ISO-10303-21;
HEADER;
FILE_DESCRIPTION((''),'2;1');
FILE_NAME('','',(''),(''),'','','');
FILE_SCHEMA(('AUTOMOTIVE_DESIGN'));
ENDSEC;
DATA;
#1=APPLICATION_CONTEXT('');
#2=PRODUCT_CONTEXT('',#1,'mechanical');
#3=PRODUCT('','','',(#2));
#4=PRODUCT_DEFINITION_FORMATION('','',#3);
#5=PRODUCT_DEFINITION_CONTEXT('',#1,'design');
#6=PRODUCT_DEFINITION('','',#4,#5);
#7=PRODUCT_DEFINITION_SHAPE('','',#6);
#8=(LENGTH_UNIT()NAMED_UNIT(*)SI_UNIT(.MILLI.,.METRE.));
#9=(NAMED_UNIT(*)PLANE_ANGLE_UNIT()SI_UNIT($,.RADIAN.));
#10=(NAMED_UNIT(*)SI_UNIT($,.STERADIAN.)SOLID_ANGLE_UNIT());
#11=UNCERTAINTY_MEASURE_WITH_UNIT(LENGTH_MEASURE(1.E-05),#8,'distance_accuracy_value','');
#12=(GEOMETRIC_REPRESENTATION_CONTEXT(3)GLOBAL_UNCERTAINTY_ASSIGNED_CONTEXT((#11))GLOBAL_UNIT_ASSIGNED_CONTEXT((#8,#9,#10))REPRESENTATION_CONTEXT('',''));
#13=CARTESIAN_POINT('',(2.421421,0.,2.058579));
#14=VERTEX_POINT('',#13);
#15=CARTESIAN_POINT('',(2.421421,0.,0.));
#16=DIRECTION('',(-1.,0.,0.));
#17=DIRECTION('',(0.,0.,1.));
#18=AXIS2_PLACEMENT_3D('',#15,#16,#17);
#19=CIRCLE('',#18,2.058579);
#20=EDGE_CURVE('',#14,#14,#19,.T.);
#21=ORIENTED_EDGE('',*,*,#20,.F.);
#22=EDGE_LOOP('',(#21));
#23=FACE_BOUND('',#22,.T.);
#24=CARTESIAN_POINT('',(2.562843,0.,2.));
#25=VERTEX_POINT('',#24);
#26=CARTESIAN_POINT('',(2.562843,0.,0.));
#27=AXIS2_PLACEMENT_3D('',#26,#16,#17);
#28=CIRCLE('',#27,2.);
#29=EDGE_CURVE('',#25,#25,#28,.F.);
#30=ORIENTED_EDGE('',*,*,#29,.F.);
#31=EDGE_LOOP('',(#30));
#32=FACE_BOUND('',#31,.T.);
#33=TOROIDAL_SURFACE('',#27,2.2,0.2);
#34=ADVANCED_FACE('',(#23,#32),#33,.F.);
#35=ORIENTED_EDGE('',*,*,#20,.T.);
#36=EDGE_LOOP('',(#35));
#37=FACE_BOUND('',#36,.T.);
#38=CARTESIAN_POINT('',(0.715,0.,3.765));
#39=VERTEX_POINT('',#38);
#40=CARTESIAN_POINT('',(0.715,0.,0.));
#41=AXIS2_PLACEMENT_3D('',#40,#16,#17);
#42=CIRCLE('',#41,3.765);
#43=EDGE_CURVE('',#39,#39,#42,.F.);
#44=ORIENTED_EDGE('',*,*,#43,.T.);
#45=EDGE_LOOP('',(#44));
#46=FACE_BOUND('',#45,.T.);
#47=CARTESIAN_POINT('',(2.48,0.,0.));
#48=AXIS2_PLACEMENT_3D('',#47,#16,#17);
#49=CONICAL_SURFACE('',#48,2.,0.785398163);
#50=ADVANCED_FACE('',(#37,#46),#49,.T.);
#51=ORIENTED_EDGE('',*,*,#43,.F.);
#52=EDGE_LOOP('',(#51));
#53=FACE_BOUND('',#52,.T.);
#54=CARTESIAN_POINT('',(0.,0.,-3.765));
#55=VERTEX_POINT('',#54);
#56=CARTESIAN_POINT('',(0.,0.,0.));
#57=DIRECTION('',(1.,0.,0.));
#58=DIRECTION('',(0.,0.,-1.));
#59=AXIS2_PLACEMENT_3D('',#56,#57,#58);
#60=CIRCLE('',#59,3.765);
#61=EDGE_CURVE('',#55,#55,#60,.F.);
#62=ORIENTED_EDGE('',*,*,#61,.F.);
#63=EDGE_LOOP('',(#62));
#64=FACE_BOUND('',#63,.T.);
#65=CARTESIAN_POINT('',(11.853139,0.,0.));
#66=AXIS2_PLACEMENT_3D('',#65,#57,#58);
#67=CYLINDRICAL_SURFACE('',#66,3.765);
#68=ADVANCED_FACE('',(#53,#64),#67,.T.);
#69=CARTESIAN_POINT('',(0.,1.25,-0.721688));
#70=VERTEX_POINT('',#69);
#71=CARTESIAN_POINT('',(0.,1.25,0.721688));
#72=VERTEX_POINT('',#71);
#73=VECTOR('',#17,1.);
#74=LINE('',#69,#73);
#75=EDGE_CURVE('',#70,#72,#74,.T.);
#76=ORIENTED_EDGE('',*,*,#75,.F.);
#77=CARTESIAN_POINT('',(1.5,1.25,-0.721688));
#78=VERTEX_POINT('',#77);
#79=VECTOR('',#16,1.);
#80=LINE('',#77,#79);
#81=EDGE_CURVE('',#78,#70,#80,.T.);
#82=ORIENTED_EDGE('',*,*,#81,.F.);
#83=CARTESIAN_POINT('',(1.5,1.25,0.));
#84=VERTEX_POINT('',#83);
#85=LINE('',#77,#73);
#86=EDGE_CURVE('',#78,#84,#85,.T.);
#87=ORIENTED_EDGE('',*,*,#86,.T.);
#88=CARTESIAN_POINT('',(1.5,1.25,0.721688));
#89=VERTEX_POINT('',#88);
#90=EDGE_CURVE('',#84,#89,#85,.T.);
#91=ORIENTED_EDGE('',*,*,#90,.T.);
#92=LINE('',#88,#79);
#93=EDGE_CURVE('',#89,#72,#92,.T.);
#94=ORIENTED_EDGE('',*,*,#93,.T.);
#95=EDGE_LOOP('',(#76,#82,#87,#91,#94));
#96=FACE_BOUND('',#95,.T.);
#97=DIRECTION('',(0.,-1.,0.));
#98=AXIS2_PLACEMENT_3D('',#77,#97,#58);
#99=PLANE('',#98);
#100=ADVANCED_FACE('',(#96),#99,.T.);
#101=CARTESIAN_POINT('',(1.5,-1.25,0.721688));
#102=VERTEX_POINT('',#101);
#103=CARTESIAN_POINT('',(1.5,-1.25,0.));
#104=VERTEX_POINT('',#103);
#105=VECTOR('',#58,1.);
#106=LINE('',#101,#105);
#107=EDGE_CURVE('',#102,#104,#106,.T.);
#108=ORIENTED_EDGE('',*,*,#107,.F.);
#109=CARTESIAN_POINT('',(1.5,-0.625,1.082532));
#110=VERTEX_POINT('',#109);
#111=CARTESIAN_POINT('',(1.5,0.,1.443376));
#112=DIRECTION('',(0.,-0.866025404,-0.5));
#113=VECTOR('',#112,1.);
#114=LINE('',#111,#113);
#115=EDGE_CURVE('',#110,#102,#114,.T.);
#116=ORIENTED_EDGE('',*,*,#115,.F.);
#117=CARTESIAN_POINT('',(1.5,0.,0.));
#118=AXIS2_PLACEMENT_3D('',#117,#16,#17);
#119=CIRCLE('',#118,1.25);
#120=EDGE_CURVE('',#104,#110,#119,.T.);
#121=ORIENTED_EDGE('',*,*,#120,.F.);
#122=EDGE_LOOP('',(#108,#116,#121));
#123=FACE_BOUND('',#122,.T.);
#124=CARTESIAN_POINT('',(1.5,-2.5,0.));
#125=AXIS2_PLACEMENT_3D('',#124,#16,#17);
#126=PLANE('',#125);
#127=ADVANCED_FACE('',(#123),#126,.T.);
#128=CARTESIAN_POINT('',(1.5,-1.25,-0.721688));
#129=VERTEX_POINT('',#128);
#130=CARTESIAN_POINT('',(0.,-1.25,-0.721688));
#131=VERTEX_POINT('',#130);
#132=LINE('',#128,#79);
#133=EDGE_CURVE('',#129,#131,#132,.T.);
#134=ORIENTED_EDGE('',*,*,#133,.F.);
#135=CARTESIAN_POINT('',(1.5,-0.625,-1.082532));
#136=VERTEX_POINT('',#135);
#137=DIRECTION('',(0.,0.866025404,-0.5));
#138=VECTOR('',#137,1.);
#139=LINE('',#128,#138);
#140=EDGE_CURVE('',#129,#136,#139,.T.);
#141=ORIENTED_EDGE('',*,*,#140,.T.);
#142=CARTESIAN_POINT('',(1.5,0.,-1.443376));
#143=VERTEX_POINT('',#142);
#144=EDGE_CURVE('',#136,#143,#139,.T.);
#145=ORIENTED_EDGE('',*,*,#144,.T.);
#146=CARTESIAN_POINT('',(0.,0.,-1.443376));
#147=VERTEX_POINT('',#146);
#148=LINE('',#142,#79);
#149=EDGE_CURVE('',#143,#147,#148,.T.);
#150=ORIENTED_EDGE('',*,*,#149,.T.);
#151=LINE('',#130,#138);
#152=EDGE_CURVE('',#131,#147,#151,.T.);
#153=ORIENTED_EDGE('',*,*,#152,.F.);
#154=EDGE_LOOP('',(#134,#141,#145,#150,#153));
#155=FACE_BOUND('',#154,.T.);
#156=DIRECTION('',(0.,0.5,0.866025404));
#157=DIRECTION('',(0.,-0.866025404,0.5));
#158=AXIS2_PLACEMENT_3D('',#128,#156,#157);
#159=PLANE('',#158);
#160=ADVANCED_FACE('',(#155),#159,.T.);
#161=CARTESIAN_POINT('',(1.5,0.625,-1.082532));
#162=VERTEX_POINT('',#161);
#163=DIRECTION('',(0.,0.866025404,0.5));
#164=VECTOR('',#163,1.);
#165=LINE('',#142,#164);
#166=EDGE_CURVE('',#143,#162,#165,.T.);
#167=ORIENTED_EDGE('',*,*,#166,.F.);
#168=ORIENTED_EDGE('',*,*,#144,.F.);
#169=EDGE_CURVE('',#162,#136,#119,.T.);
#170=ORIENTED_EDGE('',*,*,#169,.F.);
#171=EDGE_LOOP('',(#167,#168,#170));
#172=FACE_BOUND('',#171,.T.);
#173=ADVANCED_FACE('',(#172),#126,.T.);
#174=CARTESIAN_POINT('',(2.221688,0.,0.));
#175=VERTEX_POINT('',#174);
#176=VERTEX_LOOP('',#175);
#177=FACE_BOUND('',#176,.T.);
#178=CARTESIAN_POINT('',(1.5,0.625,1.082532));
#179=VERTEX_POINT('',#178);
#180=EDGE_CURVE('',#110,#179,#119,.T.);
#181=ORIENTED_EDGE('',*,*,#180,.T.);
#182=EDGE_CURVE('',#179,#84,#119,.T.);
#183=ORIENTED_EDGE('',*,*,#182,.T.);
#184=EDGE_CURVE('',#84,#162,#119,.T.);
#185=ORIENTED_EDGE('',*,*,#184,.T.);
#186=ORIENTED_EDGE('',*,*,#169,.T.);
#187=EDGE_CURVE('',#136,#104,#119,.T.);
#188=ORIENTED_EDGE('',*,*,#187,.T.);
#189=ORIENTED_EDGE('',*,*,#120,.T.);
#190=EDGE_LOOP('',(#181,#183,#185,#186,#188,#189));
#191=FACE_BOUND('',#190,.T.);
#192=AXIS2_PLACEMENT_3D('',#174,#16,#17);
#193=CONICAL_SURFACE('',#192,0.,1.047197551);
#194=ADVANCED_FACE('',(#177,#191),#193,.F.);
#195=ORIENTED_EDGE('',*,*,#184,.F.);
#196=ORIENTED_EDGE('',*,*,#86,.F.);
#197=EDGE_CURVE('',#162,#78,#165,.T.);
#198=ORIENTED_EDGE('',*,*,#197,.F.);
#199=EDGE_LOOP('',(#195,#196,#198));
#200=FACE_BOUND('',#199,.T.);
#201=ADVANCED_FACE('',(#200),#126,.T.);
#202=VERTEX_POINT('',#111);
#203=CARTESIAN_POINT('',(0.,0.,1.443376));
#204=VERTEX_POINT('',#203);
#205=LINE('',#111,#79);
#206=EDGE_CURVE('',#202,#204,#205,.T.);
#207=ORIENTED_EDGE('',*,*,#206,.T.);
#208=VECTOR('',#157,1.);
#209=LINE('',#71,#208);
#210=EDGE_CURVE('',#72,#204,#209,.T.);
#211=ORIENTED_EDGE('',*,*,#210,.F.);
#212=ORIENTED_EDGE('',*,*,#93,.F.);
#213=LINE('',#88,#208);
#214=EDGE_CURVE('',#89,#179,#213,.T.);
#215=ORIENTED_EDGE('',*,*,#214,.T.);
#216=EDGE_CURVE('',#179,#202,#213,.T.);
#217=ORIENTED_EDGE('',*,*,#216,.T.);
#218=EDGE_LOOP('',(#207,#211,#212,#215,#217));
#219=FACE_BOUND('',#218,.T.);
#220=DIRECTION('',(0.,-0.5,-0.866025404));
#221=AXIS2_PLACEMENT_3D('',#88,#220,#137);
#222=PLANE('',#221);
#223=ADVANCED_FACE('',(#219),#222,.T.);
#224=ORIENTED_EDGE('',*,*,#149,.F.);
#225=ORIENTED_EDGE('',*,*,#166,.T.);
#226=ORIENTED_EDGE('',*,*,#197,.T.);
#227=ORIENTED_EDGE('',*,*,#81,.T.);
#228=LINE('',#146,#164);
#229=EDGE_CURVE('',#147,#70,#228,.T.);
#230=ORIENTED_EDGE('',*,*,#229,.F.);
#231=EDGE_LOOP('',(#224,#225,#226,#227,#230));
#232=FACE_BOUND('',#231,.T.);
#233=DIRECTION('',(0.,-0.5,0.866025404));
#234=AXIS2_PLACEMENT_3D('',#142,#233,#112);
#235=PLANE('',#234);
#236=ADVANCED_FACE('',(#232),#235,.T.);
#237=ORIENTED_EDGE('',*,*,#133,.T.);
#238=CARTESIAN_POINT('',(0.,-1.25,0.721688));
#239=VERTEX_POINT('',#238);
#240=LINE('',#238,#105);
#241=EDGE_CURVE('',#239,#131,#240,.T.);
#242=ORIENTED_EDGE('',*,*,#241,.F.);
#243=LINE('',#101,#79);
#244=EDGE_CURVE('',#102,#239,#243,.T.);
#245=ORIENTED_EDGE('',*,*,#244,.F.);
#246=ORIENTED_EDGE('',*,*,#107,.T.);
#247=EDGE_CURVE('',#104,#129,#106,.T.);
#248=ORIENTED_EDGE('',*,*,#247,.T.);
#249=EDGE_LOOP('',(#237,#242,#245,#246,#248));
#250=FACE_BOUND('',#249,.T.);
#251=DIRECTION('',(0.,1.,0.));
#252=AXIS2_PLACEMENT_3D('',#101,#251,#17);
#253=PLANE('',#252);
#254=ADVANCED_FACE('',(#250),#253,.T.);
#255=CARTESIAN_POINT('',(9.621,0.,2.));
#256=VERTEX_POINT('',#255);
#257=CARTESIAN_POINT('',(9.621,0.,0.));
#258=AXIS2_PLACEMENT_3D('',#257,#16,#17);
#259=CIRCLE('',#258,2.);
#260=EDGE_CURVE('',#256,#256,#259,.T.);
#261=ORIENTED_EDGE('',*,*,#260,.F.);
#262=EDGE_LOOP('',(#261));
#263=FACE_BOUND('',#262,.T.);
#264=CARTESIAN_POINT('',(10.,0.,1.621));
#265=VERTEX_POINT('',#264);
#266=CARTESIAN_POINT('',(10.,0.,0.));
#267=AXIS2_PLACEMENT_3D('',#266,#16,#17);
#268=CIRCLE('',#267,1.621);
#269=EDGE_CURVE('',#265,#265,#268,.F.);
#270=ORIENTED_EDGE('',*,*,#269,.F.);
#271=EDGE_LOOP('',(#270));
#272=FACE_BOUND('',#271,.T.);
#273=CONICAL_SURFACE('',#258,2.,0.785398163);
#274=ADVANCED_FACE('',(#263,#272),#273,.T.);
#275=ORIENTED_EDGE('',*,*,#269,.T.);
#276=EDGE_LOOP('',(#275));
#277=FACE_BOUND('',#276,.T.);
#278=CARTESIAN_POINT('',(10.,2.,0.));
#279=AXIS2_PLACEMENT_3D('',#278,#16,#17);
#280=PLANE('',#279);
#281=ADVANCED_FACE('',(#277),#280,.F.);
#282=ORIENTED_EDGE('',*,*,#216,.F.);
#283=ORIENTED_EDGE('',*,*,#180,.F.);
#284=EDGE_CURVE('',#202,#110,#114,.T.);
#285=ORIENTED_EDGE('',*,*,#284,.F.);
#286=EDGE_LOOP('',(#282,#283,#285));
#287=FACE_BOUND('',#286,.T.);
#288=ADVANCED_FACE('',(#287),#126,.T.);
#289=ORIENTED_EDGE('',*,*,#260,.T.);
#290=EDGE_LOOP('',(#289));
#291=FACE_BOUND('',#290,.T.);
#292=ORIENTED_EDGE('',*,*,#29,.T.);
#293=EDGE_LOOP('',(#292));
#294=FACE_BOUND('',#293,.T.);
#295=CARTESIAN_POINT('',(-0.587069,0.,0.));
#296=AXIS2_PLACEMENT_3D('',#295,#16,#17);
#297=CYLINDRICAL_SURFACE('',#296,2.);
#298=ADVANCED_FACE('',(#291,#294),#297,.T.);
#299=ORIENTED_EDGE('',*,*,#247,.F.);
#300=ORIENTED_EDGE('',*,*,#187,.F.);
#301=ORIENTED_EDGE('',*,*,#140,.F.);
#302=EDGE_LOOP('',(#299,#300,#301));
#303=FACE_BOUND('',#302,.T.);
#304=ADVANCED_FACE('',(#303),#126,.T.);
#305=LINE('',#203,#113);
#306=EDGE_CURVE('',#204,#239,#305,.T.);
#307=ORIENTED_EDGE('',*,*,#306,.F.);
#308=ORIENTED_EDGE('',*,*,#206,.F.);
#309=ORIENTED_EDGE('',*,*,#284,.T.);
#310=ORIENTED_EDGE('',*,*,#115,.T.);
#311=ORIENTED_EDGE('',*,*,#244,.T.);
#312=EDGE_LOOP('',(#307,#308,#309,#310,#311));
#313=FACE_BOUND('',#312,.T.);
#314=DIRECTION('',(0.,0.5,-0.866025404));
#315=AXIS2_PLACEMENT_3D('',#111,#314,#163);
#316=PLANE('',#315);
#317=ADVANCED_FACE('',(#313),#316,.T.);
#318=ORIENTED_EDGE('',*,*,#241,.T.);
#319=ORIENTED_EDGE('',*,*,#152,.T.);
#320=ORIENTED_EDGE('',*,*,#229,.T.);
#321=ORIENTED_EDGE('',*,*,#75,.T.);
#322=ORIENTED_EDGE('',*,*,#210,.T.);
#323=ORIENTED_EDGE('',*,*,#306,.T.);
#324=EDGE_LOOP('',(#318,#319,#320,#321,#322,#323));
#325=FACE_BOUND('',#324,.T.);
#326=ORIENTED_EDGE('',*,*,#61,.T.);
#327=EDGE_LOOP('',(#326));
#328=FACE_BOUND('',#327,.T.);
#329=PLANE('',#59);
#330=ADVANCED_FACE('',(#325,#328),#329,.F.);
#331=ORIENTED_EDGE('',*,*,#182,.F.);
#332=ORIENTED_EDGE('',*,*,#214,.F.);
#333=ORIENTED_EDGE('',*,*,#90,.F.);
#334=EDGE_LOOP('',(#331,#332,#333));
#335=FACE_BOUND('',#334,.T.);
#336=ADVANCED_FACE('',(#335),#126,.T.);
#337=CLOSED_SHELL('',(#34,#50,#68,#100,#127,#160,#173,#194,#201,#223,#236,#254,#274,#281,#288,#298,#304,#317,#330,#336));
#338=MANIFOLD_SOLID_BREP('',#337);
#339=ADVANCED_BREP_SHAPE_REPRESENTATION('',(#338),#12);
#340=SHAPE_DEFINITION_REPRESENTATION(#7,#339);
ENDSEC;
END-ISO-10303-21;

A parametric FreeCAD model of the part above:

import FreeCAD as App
import Part
import Sketcher
from FreeCAD import Vector
Q = App.Units.Quantity


def edges_at(feature, points):
    """Names of the edges that pass closest to the given points."""
    edges = feature.Shape.Edges
    near = lambda p: min(range(len(edges)), key=lambda i: edges[i].distToShape(Part.Vertex(*p))[0])
    return sorted({f"Edge{near(p) + 1}" for p in points})

doc = App.newDocument("Part")
body = doc.addObject("PartDesign::Body", "Body")

# Sketch on XY plane
sketch1 = body.newObject("Sketcher::SketchObject", "Sketch")
sketch1.AttachmentSupport = (doc.getObject("XY_Plane"), [""])
sketch1.MapMode = "FlatFace"
sketch1.addGeometry(Part.LineSegment(Vector(0, 4.5, 0), Vector(0, 0, 0)), False)
sketch1.addGeometry(Part.LineSegment(Vector(0, 0, 0), Vector(10, 0, 0)), False)
sketch1.addGeometry(Part.LineSegment(Vector(10, 0, 0), Vector(10, 2, 0)), False)
sketch1.addGeometry(Part.LineSegment(Vector(10, 2, 0), Vector(2.5, 2, 0)), False)
sketch1.addGeometry(Part.LineSegment(Vector(2.5, 2, 0), Vector(0, 4.5, 0)), False)
sketch1.addConstraint(Sketcher.Constraint("Coincident", 0, 2, 1, 1))
sketch1.addConstraint(Sketcher.Constraint("Coincident", 1, 2, 2, 1))
sketch1.addConstraint(Sketcher.Constraint("Coincident", 2, 2, 3, 1))
sketch1.addConstraint(Sketcher.Constraint("Coincident", 3, 2, 4, 1))
sketch1.addConstraint(Sketcher.Constraint("Coincident", 4, 2, 0, 1))
sketch1.addConstraint(Sketcher.Constraint("Vertical", 0))
sketch1.addConstraint(Sketcher.Constraint("Horizontal", 1))
sketch1.addConstraint(Sketcher.Constraint("Vertical", 2))
sketch1.addConstraint(Sketcher.Constraint("Horizontal", 3))
sketch1.addConstraint(Sketcher.Constraint("Coincident", 0, 2, -1, 1))
sketch1.addConstraint(Sketcher.Constraint("DistanceX", 1, 1, 1, 2, 10.0))
sketch1.addConstraint(Sketcher.Constraint("DistanceY", 2, 1, 2, 2, 2.0))
sketch1.addConstraint(Sketcher.Constraint("Angle", 4, Q("135 deg")))
sketch1.addConstraint(Sketcher.Constraint("DistanceX", 3, 2, 3, 1, 7.52))
revolution = body.newObject("PartDesign::Revolution", "Revolution")
revolution.Profile = sketch1
revolution.ReferenceAxis = (sketch1, ["H_Axis"])
revolution.Angle = 360

# Sketch on YZ plane
sketch2 = body.newObject("Sketcher::SketchObject", "Sketch001")
sketch2.AttachmentSupport = (doc.getObject("YZ_Plane"), [""])
sketch2.MapMode = "FlatFace"
sketch2.addGeometry(Part.LineSegment(Vector(0, -1.4, 0), Vector(1.2, -0.7, 0)), False)
sketch2.addGeometry(Part.LineSegment(Vector(1.2, -0.7, 0), Vector(1.2, 0.7, 0)), False)
sketch2.addGeometry(Part.LineSegment(Vector(1.2, 0.7, 0), Vector(0, 1.4, 0)), False)
sketch2.addGeometry(Part.LineSegment(Vector(0, 1.4, 0), Vector(-1.2, 0.7, 0)), False)
sketch2.addGeometry(Part.LineSegment(Vector(-1.2, 0.7, 0), Vector(-1.2, -0.7, 0)), False)
sketch2.addGeometry(Part.LineSegment(Vector(-1.2, -0.7, 0), Vector(0, -1.4, 0)), False)
sketch2.addConstraint(Sketcher.Constraint("Coincident", 0, 2, 1, 1))
sketch2.addConstraint(Sketcher.Constraint("Coincident", 1, 2, 2, 1))
sketch2.addConstraint(Sketcher.Constraint("Coincident", 2, 2, 3, 1))
sketch2.addConstraint(Sketcher.Constraint("Coincident", 3, 2, 4, 1))
sketch2.addConstraint(Sketcher.Constraint("Coincident", 4, 2, 5, 1))
sketch2.addConstraint(Sketcher.Constraint("Coincident", 5, 2, 0, 1))
sketch2.addConstraint(Sketcher.Constraint("Vertical", 1))
sketch2.addConstraint(Sketcher.Constraint("Vertical", 4))
sketch2.addConstraint(Sketcher.Constraint("Symmetric", 0, 2, 3, 2, -1, 1))
sketch2.addConstraint(Sketcher.Constraint("Symmetric", 2, 2, 5, 2, -1, 1))
sketch2.addConstraint(Sketcher.Constraint("PointOnObject", 2, 2, -2))
sketch2.addConstraint(Sketcher.Constraint("Parallel", 2, 5))
sketch2.addConstraint(Sketcher.Constraint("Horizontal", 1, 2, 3, 2))
sketch2.addConstraint(Sketcher.Constraint("Angle", 0, Q("30 deg")))
sketch2.addConstraint(Sketcher.Constraint("DistanceX", 3, 2, 1, 2, 2.5))
sketch2.addConstraint(Sketcher.Constraint("DistanceY", 1, 1, 1, 2, 1.443376))
pocket1 = body.newObject("PartDesign::Pocket", "Pocket")
pocket1.Profile = sketch2
pocket1.Length = 1.5
pocket1.Reversed = True

# Sketch on XY plane
sketch3 = body.newObject("Sketcher::SketchObject", "Sketch002")
sketch3.AttachmentSupport = (doc.getObject("XY_Plane"), [""])
sketch3.MapMode = "FlatFace"
sketch3.addGeometry(Part.LineSegment(Vector(2.2, 0, 0), Vector(1.5, 1.2, 0)), False)
sketch3.addGeometry(Part.LineSegment(Vector(1.5, 1.2, 0), Vector(1.5, 0, 0)), False)
sketch3.addGeometry(Part.LineSegment(Vector(1.5, 0, 0), Vector(2.2, 0, 0)), False)
sketch3.addConstraint(Sketcher.Constraint("Coincident", 0, 2, 1, 1))
sketch3.addConstraint(Sketcher.Constraint("Coincident", 1, 2, 2, 1))
sketch3.addConstraint(Sketcher.Constraint("Coincident", 2, 2, 0, 1))
sketch3.addConstraint(Sketcher.Constraint("Vertical", 1))
sketch3.addConstraint(Sketcher.Constraint("Horizontal", 2))
sketch3.addConstraint(Sketcher.Constraint("PointOnObject", 1, 2, -1))
sketch3.addConstraint(Sketcher.Constraint("Angle", 0, Q("120 deg")))
sketch3.addConstraint(Sketcher.Constraint("DistanceY", 1, 2, 1, 1, 1.25))
sketch3.addConstraint(Sketcher.Constraint("DistanceX", -1, 1, 0, 2, 1.5))
groove = body.newObject("PartDesign::Groove", "Groove")
groove.Profile = sketch3
groove.ReferenceAxis = (sketch3, ["H_Axis"])
groove.Angle = 360
doc.recompute()

fillet = body.newObject("PartDesign::Fillet", "Fillet")
fillet.Base = (groove, edges_at(groove, [(2.48, 0, -2)]))
fillet.Radius = 0.2
doc.recompute()

chamfer = body.newObject("PartDesign::Chamfer", "Chamfer")
chamfer.Base = (fillet, edges_at(fillet, [(10, 0, -2)]))
chamfer.Size = 0.379

# Sketch on XZ plane
sketch4 = body.newObject("Sketcher::SketchObject", "Sketch003")
sketch4.AttachmentSupport = (doc.getObject("XZ_Plane"), [""])
sketch4.MapMode = "FlatFace"
sketch4.addGeometry(Part.LineSegment(Vector(-2, -9, 0), Vector(-2, -4, 0)), False)
sketch4.addGeometry(Part.LineSegment(Vector(-2, -4, 0), Vector(3, -4, 0)), False)
sketch4.addGeometry(Part.LineSegment(Vector(3, -4, 0), Vector(3, -9, 0)), False)
sketch4.addGeometry(Part.LineSegment(Vector(3, -9, 0), Vector(-2, -9, 0)), False)
sketch4.addConstraint(Sketcher.Constraint("Coincident", 0, 2, 1, 1))
sketch4.addConstraint(Sketcher.Constraint("Coincident", 1, 2, 2, 1))
sketch4.addConstraint(Sketcher.Constraint("Coincident", 2, 2, 3, 1))
sketch4.addConstraint(Sketcher.Constraint("Coincident", 3, 2, 0, 1))
sketch4.addConstraint(Sketcher.Constraint("Vertical", 0))
sketch4.addConstraint(Sketcher.Constraint("Horizontal", 1))
sketch4.addConstraint(Sketcher.Constraint("Vertical", 2))
sketch4.addConstraint(Sketcher.Constraint("Horizontal", 3))
sketch4.addConstraint(Sketcher.Constraint("Equal", 3, 0))
sketch4.addConstraint(Sketcher.Constraint("DistanceX", 1, 1, 1, 2, 5.0))
sketch4.addConstraint(Sketcher.Constraint("DistanceX", 0, 2, -1, 1, 2.0))
sketch4.addConstraint(Sketcher.Constraint("DistanceY", 0, 2, -1, 1, 3.765))
groove2 = body.newObject("PartDesign::Groove", "Groove001")
groove2.Profile = sketch4
groove2.ReferenceAxis = (sketch4, ["H_Axis"])
groove2.Angle = 360

doc.recompute()
